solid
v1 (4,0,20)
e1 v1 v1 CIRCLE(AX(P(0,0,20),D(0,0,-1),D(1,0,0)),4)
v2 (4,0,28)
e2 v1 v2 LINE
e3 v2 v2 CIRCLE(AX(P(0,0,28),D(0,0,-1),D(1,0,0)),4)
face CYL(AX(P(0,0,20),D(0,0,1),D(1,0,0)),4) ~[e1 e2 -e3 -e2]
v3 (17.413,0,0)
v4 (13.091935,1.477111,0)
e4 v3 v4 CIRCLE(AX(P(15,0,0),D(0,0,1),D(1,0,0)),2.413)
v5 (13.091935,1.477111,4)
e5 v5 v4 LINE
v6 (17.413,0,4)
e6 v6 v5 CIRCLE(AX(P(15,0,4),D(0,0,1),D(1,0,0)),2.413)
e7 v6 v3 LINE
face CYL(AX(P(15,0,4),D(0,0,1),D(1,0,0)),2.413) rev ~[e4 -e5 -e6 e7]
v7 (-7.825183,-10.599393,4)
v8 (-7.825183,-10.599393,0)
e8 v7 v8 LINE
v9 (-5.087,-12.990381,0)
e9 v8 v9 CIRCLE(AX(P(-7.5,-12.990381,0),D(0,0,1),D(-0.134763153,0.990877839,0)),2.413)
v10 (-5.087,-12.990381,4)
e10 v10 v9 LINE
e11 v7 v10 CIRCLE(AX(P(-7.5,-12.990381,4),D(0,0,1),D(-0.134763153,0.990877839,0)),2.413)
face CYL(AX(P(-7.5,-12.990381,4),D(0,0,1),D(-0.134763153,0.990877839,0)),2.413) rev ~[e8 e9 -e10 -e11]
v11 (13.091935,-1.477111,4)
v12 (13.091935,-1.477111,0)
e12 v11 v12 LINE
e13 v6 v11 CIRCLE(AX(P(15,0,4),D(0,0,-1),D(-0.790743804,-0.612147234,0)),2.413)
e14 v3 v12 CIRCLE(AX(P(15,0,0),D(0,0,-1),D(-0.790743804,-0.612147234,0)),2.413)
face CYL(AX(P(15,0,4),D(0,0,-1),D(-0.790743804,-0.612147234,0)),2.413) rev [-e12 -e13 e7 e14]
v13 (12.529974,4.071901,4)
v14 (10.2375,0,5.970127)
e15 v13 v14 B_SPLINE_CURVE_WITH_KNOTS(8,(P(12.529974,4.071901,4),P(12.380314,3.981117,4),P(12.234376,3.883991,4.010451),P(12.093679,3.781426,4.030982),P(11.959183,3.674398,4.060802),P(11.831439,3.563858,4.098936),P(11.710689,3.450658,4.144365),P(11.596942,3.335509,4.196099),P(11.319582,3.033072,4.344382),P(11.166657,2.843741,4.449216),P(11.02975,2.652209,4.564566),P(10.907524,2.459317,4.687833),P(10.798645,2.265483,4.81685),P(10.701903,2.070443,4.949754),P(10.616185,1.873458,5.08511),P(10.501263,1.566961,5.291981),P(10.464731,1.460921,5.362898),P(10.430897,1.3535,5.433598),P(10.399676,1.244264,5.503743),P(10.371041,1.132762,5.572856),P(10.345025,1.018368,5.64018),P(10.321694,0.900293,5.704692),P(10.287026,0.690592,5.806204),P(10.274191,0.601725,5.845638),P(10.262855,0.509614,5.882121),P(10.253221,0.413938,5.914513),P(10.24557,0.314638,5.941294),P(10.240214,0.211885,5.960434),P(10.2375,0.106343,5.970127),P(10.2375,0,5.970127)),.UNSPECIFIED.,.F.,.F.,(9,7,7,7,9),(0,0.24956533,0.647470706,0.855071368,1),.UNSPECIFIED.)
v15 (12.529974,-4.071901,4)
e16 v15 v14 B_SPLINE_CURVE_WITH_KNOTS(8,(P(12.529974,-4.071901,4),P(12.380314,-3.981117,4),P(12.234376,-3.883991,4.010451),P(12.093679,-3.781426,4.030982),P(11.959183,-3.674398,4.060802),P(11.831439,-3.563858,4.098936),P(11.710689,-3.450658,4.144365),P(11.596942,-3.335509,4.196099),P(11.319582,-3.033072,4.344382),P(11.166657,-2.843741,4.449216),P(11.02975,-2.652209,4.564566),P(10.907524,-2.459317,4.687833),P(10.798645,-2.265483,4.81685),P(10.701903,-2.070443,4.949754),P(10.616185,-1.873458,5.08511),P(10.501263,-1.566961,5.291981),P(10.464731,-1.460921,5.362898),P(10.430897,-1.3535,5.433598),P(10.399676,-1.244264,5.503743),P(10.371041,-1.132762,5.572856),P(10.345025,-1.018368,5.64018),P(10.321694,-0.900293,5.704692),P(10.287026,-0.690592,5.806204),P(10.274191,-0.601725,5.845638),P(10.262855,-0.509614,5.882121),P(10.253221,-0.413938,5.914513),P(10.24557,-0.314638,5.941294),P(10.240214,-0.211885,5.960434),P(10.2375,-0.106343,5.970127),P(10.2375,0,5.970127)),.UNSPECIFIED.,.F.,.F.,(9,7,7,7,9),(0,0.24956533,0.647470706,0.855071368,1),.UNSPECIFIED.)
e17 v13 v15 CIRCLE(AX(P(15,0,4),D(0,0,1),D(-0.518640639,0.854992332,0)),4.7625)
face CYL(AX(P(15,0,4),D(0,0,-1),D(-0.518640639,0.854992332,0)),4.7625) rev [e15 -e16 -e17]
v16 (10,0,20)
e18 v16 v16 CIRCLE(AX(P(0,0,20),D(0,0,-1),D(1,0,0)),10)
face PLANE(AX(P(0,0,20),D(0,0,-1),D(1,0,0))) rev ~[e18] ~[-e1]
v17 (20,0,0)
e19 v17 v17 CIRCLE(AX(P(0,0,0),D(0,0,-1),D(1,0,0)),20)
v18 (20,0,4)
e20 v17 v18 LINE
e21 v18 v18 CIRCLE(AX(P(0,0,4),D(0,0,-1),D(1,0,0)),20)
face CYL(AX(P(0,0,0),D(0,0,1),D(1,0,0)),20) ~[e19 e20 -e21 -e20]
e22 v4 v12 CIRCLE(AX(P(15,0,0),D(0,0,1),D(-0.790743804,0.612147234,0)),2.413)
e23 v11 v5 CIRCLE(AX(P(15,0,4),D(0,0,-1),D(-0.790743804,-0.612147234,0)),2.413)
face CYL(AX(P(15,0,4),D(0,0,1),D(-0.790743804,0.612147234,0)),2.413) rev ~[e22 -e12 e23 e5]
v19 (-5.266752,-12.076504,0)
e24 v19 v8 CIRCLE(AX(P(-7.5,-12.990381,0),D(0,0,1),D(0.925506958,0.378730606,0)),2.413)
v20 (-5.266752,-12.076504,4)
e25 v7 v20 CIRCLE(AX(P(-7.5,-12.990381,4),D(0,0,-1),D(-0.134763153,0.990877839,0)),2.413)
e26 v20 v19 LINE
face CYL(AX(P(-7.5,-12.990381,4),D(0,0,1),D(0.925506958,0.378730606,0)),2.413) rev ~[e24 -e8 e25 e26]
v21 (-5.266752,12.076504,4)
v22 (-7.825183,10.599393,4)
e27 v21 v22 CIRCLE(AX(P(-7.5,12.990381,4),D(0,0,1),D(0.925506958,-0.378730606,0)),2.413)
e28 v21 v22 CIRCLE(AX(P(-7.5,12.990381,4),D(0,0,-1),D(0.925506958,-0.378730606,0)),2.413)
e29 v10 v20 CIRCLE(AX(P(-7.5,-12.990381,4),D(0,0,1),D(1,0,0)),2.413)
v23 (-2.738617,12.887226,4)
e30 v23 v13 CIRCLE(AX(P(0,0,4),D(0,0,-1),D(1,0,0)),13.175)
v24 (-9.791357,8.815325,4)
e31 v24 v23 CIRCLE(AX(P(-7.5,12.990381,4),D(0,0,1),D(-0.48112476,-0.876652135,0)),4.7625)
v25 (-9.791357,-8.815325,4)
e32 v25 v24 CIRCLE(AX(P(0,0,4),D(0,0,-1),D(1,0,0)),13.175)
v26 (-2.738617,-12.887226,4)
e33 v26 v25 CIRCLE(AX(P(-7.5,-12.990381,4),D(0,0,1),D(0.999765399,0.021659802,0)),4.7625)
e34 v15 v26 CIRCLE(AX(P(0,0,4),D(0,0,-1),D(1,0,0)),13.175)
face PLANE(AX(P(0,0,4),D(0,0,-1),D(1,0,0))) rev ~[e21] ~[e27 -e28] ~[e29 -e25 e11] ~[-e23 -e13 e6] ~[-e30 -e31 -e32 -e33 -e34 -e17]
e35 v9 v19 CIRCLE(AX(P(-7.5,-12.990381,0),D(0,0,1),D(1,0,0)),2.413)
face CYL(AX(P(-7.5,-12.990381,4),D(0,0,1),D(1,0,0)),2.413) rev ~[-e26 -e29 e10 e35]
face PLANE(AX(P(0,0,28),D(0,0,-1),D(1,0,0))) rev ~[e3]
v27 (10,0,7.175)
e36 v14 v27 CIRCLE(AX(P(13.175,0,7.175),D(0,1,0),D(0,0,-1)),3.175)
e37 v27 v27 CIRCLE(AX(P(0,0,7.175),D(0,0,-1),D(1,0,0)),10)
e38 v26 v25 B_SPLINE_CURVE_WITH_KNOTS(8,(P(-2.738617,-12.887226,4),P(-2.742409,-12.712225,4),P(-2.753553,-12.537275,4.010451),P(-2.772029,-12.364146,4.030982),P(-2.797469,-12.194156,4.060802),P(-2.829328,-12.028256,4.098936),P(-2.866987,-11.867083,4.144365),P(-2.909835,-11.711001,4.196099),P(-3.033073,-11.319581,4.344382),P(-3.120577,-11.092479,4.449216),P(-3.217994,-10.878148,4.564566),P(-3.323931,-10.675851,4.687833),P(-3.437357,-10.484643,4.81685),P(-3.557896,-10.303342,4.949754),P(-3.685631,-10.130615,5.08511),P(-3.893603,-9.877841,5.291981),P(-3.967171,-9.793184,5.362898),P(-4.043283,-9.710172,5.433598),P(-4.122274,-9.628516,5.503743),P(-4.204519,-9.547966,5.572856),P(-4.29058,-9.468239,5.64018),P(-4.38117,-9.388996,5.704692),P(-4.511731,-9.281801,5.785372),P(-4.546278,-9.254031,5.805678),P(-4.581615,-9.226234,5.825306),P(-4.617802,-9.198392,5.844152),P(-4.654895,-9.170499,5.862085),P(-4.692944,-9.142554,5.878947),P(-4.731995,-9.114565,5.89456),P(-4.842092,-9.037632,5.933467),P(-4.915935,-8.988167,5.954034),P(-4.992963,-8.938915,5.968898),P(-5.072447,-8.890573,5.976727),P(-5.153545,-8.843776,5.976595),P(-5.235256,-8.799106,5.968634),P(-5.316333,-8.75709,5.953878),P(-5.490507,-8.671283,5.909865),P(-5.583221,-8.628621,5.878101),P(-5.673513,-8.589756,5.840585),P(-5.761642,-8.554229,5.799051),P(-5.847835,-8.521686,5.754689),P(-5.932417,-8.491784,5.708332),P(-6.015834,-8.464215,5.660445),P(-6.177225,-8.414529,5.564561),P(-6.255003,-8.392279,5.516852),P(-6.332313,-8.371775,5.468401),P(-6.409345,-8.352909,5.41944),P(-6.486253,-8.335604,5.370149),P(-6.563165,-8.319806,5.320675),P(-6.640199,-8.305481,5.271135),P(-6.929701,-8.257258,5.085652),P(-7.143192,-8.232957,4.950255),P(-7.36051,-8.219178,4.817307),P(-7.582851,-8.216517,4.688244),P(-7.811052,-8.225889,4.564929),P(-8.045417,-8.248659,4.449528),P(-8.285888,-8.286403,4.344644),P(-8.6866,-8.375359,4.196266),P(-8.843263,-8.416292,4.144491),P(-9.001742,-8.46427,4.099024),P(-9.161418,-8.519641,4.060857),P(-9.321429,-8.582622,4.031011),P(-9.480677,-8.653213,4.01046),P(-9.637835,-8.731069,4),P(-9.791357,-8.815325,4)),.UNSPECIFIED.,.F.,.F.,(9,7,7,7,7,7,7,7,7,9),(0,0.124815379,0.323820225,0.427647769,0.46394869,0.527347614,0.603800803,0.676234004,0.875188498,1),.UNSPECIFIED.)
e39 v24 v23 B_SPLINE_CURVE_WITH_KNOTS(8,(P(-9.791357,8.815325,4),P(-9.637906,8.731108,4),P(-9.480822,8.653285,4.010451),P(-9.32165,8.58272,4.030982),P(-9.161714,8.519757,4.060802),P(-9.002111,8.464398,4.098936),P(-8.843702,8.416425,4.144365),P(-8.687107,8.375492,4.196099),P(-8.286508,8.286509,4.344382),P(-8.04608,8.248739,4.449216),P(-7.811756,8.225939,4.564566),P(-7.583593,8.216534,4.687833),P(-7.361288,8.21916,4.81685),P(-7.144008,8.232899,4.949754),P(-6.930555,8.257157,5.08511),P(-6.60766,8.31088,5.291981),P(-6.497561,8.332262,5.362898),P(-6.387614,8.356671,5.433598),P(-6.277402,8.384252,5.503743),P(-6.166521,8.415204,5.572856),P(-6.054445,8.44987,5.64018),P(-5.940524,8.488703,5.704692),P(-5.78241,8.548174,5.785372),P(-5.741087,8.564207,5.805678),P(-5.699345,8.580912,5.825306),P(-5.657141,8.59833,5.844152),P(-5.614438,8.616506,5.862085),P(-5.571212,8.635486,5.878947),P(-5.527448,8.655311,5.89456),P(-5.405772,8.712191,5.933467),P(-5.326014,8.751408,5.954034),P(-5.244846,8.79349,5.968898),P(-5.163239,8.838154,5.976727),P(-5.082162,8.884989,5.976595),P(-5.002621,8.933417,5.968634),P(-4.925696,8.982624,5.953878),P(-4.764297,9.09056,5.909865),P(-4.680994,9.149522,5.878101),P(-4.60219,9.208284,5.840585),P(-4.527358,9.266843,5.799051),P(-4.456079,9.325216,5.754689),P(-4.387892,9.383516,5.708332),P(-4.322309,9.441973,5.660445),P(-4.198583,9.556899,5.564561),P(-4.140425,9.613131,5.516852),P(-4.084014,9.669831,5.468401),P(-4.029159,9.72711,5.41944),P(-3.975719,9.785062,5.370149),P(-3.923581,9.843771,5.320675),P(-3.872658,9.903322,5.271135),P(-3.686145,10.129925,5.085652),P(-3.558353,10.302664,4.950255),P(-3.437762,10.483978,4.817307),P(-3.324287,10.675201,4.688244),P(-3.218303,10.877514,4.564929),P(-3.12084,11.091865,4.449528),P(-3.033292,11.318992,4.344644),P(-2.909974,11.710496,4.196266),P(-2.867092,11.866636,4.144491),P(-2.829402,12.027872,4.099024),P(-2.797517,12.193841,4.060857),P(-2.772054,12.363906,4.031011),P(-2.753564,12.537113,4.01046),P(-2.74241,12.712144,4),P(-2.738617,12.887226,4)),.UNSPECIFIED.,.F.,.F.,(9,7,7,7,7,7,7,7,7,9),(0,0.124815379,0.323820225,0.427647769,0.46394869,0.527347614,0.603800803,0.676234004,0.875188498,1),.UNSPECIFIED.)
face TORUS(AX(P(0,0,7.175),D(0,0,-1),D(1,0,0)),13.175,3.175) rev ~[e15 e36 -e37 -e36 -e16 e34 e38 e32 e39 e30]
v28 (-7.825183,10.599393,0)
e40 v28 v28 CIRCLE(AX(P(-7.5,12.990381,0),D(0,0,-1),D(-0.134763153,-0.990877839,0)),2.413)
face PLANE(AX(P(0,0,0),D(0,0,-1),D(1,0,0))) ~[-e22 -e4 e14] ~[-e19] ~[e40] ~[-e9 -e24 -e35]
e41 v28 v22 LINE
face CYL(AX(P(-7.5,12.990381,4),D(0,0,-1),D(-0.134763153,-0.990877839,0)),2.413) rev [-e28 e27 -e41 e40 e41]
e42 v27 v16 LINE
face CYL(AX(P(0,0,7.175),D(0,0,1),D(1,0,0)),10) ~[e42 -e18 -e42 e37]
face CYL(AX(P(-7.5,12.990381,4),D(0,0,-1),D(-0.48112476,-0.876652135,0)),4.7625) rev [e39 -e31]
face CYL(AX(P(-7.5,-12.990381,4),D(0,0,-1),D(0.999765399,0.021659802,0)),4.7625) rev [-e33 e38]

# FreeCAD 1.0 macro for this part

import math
import FreeCAD as App
import Part
import Sketcher

V = App.Vector

doc = App.newDocument("Part")
body = doc.addObject("PartDesign::Body", "Body")

# Sketch on XZ plane
sketch1 = body.newObject("Sketcher::SketchObject", "Sketch")
sketch1.AttachmentSupport = (doc.getObject("XZ_Plane"), [""])
sketch1.MapMode = "FlatFace"
sketch1.addGeometry(Part.LineSegment(V(0, 28, 0), V(0, 0, 0)), False)
sketch1.addGeometry(Part.LineSegment(V(0, 0, 0), V(20, 0, 0)), False)
sketch1.addGeometry(Part.LineSegment(V(20, 0, 0), V(20, 4, 0)), False)
sketch1.addGeometry(Part.LineSegment(V(20, 4, 0), V(13.2, 4, 0)), False)
sketch1.addGeometry(Part.ArcOfCircle(Part.Circle(V(13.2, 7.2, 0), V(0, 0, 1), 3.2), math.radians(180), math.radians(270)), False)
sketch1.addGeometry(Part.LineSegment(V(10, 7.2, 0), V(10, 20, 0)), False)
sketch1.addGeometry(Part.LineSegment(V(10, 20, 0), V(4, 20, 0)), False)
sketch1.addGeometry(Part.LineSegment(V(4, 20, 0), V(4, 28, 0)), False)
sketch1.addGeometry(Part.LineSegment(V(4, 28, 0), V(0, 28, 0)), False)
sketch1.addConstraint(Sketcher.Constraint("Coincident", 0, 2, 1, 1))
sketch1.addConstraint(Sketcher.Constraint("Coincident", 1, 2, 2, 1))
sketch1.addConstraint(Sketcher.Constraint("Coincident", 2, 2, 3, 1))
sketch1.addConstraint(Sketcher.Constraint("Tangent", 3, 2, 4, 2))
sketch1.addConstraint(Sketcher.Constraint("Tangent", 4, 1, 5, 1))
sketch1.addConstraint(Sketcher.Constraint("Coincident", 5, 2, 6, 1))
sketch1.addConstraint(Sketcher.Constraint("Coincident", 6, 2, 7, 1))
sketch1.addConstraint(Sketcher.Constraint("Coincident", 7, 2, 8, 1))
sketch1.addConstraint(Sketcher.Constraint("Coincident", 8, 2, 0, 1))
sketch1.addConstraint(Sketcher.Constraint("Vertical", 0))
sketch1.addConstraint(Sketcher.Constraint("Horizontal", 1))
sketch1.addConstraint(Sketcher.Constraint("Vertical", 2))
sketch1.addConstraint(Sketcher.Constraint("Horizontal", 3))
sketch1.addConstraint(Sketcher.Constraint("Vertical", 5))
sketch1.addConstraint(Sketcher.Constraint("Horizontal", 6))
sketch1.addConstraint(Sketcher.Constraint("Vertical", 7))
sketch1.addConstraint(Sketcher.Constraint("Horizontal", 8))
sketch1.addConstraint(Sketcher.Constraint("Coincident", 0, 2, -1, 1))
sketch1.addConstraint(Sketcher.Constraint("Equal", 8, 2))
sketch1.addConstraint(Sketcher.Constraint("DistanceX", 1, 1, 1, 2, 20.0))
sketch1.addConstraint(Sketcher.Constraint("DistanceX", 6, 2, 6, 1, 6.0))
sketch1.addConstraint(Sketcher.Constraint("DistanceX", 8, 2, 8, 1, 4.0))
sketch1.addConstraint(Sketcher.Constraint("DistanceY", 0, 2, 0, 1, 28.0))
sketch1.addConstraint(Sketcher.Constraint("DistanceY", 7, 1, 7, 2, 8.0))
sketch1.addConstraint(Sketcher.Constraint("Radius", 4, 3.175))
revolution = body.newObject("PartDesign::Revolution", "Revolution")
revolution.Profile = sketch1
revolution.ReferenceAxis = (sketch1, ["V_Axis"])
revolution.Angle = 360

# Sketch on XY plane
sketch2 = body.newObject("Sketcher::SketchObject", "Sketch001")
sketch2.AttachmentSupport = (doc.getObject("XY_Plane"), [""])
sketch2.MapMode = "FlatFace"
sketch2.AttachmentOffset = App.Placement(V(0, 0, 4), App.Rotation())
sketch2.addGeometry(Part.ArcOfCircle(Part.Circle(V(-7.5, 13, 0), V(0, 0, 1), 2.4), math.radians(-98), math.radians(-22)), False)
sketch2.addGeometry(Part.ArcOfCircle(Part.Circle(V(-7.5, 13, 0), V(0, 0, 1), 2.4), math.radians(-22), math.radians(0)), False)
sketch2.addGeometry(Part.ArcOfCircle(Part.Circle(V(-7.5, 13, 0), V(0, 0, 1), 2.4), math.radians(0), math.radians(262)), False)
sketch2.addGeometry(Part.ArcOfCircle(Part.Circle(V(15, 0, 0), V(0, 0, 1), 2.4), math.radians(-142), math.radians(0)), False)
sketch2.addGeometry(Part.ArcOfCircle(Part.Circle(V(15, 0, 0), V(0, 0, 1), 2.4), math.radians(0), math.radians(142)), False)
sketch2.addGeometry(Part.ArcOfCircle(Part.Circle(V(15, 0, 0), V(0, 0, 1), 2.4), math.radians(142), math.radians(218)), False)
sketch2.addGeometry(Part.ArcOfCircle(Part.Circle(V(-7.5, -13, 0), V(0, 0, 1), 2.4), math.radians(22), math.radians(98)), False)
sketch2.addGeometry(Part.ArcOfCircle(Part.Circle(V(-7.5, -13, 0), V(0, 0, 1), 2.4), math.radians(98), math.radians(360)), False)
sketch2.addGeometry(Part.ArcOfCircle(Part.Circle(V(-7.5, -13, 0), V(0, 0, 1), 2.4), math.radians(0), math.radians(22)), False)
sketch2.addConstraint(Sketcher.Constraint("Tangent", 0, 2, 1, 1))
sketch2.addConstraint(Sketcher.Constraint("Tangent", 1, 2, 2, 1))
sketch2.addConstraint(Sketcher.Constraint("Tangent", 2, 2, 0, 1))
sketch2.addConstraint(Sketcher.Constraint("Tangent", 3, 2, 4, 1))
sketch2.addConstraint(Sketcher.Constraint("Tangent", 4, 2, 5, 1))
sketch2.addConstraint(Sketcher.Constraint("Tangent", 5, 2, 3, 1))
sketch2.addConstraint(Sketcher.Constraint("Tangent", 6, 2, 7, 1))
sketch2.addConstraint(Sketcher.Constraint("Tangent", 7, 2, 8, 1))
sketch2.addConstraint(Sketcher.Constraint("Tangent", 8, 2, 6, 1))
sketch2.addConstraint(Sketcher.Constraint("Equal", 2, 3))
sketch2.addConstraint(Sketcher.Constraint("Equal", 5, 6))
sketch2.addConstraint(Sketcher.Constraint("Symmetric", 0, 3, 6, 3, -1))
sketch2.addConstraint(Sketcher.Constraint("Symmetric", 4, 2, 5, 2, -1))
sketch2.addConstraint(Sketcher.Constraint("PointOnObject", 3, 2, -1))
sketch2.addConstraint(Sketcher.Constraint("Horizontal", 2, 3, 1, 2))
sketch2.addConstraint(Sketcher.Constraint("Horizontal", 8, 3, 7, 2))
sketch2.addConstraint(Sketcher.Constraint("Vertical", 2, 2, 6, 2))
sketch2.addConstraint(Sketcher.Constraint("Vertical", 0, 2, 8, 2))
sketch2.addConstraint(Sketcher.Constraint("DistanceX", -1, 1, 3, 3, 15.0))
sketch2.addConstraint(Sketcher.Constraint("Radius", 0, 2.413))
sketch2.addConstraint(Sketcher.Constraint("DistanceX", 0, 3, -1, 1, 7.5))
sketch2.addConstraint(Sketcher.Constraint("DistanceY", -1, 1, 0, 3, 12.990381))
sketch2.addConstraint(Sketcher.Constraint("DistanceX", 0, 2, -1, 1, 5.266752))
sketch2.addConstraint(Sketcher.Constraint("DistanceY", -1, 1, 4, 2, 1.477111))
sketch2.addConstraint(Sketcher.Constraint("DistanceY", 2, 2, 0, 3, 2.390988))
pocket1 = body.newObject("PartDesign::Pocket", "Pocket")
pocket1.Profile = sketch2
pocket1.Length = 25.4
pocket1.Midplane = True

# Sketch on XY plane
sketch3 = body.newObject("Sketcher::SketchObject", "Sketch002")
sketch3.AttachmentSupport = (doc.getObject("XY_Plane"), [""])
sketch3.MapMode = "FlatFace"
sketch3.AttachmentOffset = App.Placement(V(0, 0, 4), App.Rotation())
sketch3.addGeometry(Part.ArcOfCircle(Part.Circle(V(-7.5, 12.99, 0), V(0, 0, 1), 4.76), math.radians(-1.24), math.radians(0)), False)
sketch3.addGeometry(Part.ArcOfCircle(Part.Circle(V(-7.5, 12.99, 0), V(0, 0, 1), 4.76), math.radians(0), math.radians(241)), False)
sketch3.addGeometry(Part.ArcOfCircle(Part.Circle(V(-7.5, 12.99, 0), V(0, 0, 1), 4.76), math.radians(-119), math.radians(-1)), False)
sketch3.addGeometry(Part.ArcOfCircle(Part.Circle(V(-7.5, 12.99, 0), V(0, 0, 1), 2.41), math.radians(0), math.radians(262)), False)
sketch3.addGeometry(Part.ArcOfCircle(Part.Circle(V(-7.5, 12.99, 0), V(0, 0, 1), 2.41), math.radians(-22), math.radians(0)), False)
sketch3.addGeometry(Part.ArcOfCircle(Part.Circle(V(-7.5, 12.99, 0), V(0, 0, 1), 2.41), math.radians(-98), math.radians(-22)), False)
sketch3.addGeometry(Part.ArcOfCircle(Part.Circle(V(15, 0, 0), V(0, 0, 1), 4.76), math.radians(121), math.radians(239)), False)
sketch3.addGeometry(Part.ArcOfCircle(Part.Circle(V(15, 0, 0), V(0, 0, 1), 4.76), math.radians(-121), math.radians(0)), False)
sketch3.addGeometry(Part.ArcOfCircle(Part.Circle(V(15, 0, 0), V(0, 0, 1), 4.76), math.radians(0), math.radians(121)), False)
sketch3.addGeometry(Part.ArcOfCircle(Part.Circle(V(15, 0, 0), V(0, 0, 1), 2.41), math.radians(142), math.radians(218)), False)
sketch3.addGeometry(Part.ArcOfCircle(Part.Circle(V(15, 0, 0), V(0, 0, 1), 2.41), math.radians(0), math.radians(142)), False)
sketch3.addGeometry(Part.ArcOfCircle(Part.Circle(V(15, 0, 0), V(0, 0, 1), 2.41), math.radians(-142), math.radians(0)), False)
sketch3.addGeometry(Part.ArcOfCircle(Part.Circle(V(-7.5, -12.99, 0), V(0, 0, 1), 4.76), math.radians(1), math.radians(119)), False)
sketch3.addGeometry(Part.ArcOfCircle(Part.Circle(V(-7.5, -12.99, 0), V(0, 0, 1), 4.76), math.radians(119), math.radians(360)), False)
sketch3.addGeometry(Part.ArcOfCircle(Part.Circle(V(-7.5, -12.99, 0), V(0, 0, 1), 4.76), math.radians(0), math.radians(1.24)), False)
sketch3.addGeometry(Part.ArcOfCircle(Part.Circle(V(-7.5, -12.99, 0), V(0, 0, 1), 2.41), math.radians(22), math.radians(98)), False)
sketch3.addGeometry(Part.ArcOfCircle(Part.Circle(V(-7.5, -12.99, 0), V(0, 0, 1), 2.41), math.radians(0), math.radians(22)), False)
sketch3.addGeometry(Part.ArcOfCircle(Part.Circle(V(-7.5, -12.99, 0), V(0, 0, 1), 2.41), math.radians(98), math.radians(360)), False)
sketch3.addConstraint(Sketcher.Constraint("Tangent", 0, 2, 1, 1))
sketch3.addConstraint(Sketcher.Constraint("Tangent", 1, 2, 2, 1))
sketch3.addConstraint(Sketcher.Constraint("Tangent", 2, 2, 0, 1))
sketch3.addConstraint(Sketcher.Constraint("Tangent", 3, 1, 4, 2))
sketch3.addConstraint(Sketcher.Constraint("Tangent", 4, 1, 5, 2))
sketch3.addConstraint(Sketcher.Constraint("Tangent", 5, 1, 3, 2))
sketch3.addConstraint(Sketcher.Constraint("Tangent", 6, 2, 7, 1))
sketch3.addConstraint(Sketcher.Constraint("Tangent", 7, 2, 8, 1))
sketch3.addConstraint(Sketcher.Constraint("Tangent", 8, 2, 6, 1))
sketch3.addConstraint(Sketcher.Constraint("Tangent", 9, 1, 10, 2))
sketch3.addConstraint(Sketcher.Constraint("Tangent", 10, 1, 11, 2))
sketch3.addConstraint(Sketcher.Constraint("Tangent", 11, 1, 9, 2))
sketch3.addConstraint(Sketcher.Constraint("Tangent", 12, 2, 13, 1))
sketch3.addConstraint(Sketcher.Constraint("Tangent", 13, 2, 14, 1))
sketch3.addConstraint(Sketcher.Constraint("Tangent", 14, 2, 12, 1))
sketch3.addConstraint(Sketcher.Constraint("Tangent", 15, 1, 16, 2))
sketch3.addConstraint(Sketcher.Constraint("Tangent", 16, 1, 17, 2))
sketch3.addConstraint(Sketcher.Constraint("Tangent", 17, 1, 15, 2))
sketch3.addConstraint(Sketcher.Constraint("Coincident", 3, 3, 0, 3))
sketch3.addConstraint(Sketcher.Constraint("Coincident", 9, 3, 6, 3))
sketch3.addConstraint(Sketcher.Constraint("Coincident", 15, 3, 12, 3))
sketch3.addConstraint(Sketcher.Constraint("Equal", 2, 6))
sketch3.addConstraint(Sketcher.Constraint("Equal", 5, 9))
sketch3.addConstraint(Sketcher.Constraint("Equal", 8, 12))
sketch3.addConstraint(Sketcher.Constraint("Equal", 11, 15))
sketch3.addConstraint(Sketcher.Constraint("Symmetric", 0, 3, 12, 3, -1))
sketch3.addConstraint(Sketcher.Constraint("Symmetric", 6, 2, 8, 2, -1))
sketch3.addConstraint(Sketcher.Constraint("PointOnObject", 7, 2, -1))
sketch3.addConstraint(Sketcher.Constraint("PointOnObject", 10, 1, -1))
sketch3.addConstraint(Sketcher.Constraint("Horizontal", 5, 3, 0, 2))
sketch3.addConstraint(Sketcher.Constraint("Horizontal", 0, 2, 3, 1))
sketch3.addConstraint(Sketcher.Constraint("Horizontal", 17, 3, 13, 2))
sketch3.addConstraint(Sketcher.Constraint("Horizontal", 13, 2, 16, 1))
sketch3.addConstraint(Sketcher.Constraint("Vertical", 9, 1, 11, 1))
sketch3.addConstraint(Sketcher.Constraint("Vertical", 1, 2, 12, 2))
sketch3.addConstraint(Sketcher.Constraint("Vertical", 2, 2, 14, 2))
sketch3.addConstraint(Sketcher.Constraint("Vertical", 4, 1, 15, 1))
sketch3.addConstraint(Sketcher.Constraint("Vertical", 5, 1, 17, 1))
sketch3.addConstraint(Sketcher.Constraint("DistanceX", -1, 1, 6, 3, 15.0))
sketch3.addConstraint(Sketcher.Constraint("Radius", 3, 2.413))
sketch3.addConstraint(Sketcher.Constraint("DistanceX", 0, 3, -1, 1, 7.5))
sketch3.addConstraint(Sketcher.Constraint("Radius", 0, 4.7625))
sketch3.addConstraint(Sketcher.Constraint("DistanceY", 6, 2, -1, 1, 4.071901))
sketch3.addConstraint(Sketcher.Constraint("DistanceY", -1, 1, 0, 3, 12.990381))
sketch3.addConstraint(Sketcher.Constraint("DistanceX", 4, 1, -1, 1, 5.266752))
sketch3.addConstraint(Sketcher.Constraint("DistanceY", -1, 1, 9, 1, 1.477111))
sketch3.addConstraint(Sketcher.Constraint("DistanceY", 5, 1, 0, 3, 2.390988))
sketch3.addConstraint(Sketcher.Constraint("DistanceX", 1, 2, -1, 1, 9.791357))
sketch3.addConstraint(Sketcher.Constraint("DistanceX", 2, 2, -1, 1, 2.738617))
pocket2 = body.newObject("PartDesign::Pocket", "Pocket001")
pocket2.Profile = sketch3
pocket2.Type = "ThroughAll"
pocket2.Reversed = True

doc.recompute()
